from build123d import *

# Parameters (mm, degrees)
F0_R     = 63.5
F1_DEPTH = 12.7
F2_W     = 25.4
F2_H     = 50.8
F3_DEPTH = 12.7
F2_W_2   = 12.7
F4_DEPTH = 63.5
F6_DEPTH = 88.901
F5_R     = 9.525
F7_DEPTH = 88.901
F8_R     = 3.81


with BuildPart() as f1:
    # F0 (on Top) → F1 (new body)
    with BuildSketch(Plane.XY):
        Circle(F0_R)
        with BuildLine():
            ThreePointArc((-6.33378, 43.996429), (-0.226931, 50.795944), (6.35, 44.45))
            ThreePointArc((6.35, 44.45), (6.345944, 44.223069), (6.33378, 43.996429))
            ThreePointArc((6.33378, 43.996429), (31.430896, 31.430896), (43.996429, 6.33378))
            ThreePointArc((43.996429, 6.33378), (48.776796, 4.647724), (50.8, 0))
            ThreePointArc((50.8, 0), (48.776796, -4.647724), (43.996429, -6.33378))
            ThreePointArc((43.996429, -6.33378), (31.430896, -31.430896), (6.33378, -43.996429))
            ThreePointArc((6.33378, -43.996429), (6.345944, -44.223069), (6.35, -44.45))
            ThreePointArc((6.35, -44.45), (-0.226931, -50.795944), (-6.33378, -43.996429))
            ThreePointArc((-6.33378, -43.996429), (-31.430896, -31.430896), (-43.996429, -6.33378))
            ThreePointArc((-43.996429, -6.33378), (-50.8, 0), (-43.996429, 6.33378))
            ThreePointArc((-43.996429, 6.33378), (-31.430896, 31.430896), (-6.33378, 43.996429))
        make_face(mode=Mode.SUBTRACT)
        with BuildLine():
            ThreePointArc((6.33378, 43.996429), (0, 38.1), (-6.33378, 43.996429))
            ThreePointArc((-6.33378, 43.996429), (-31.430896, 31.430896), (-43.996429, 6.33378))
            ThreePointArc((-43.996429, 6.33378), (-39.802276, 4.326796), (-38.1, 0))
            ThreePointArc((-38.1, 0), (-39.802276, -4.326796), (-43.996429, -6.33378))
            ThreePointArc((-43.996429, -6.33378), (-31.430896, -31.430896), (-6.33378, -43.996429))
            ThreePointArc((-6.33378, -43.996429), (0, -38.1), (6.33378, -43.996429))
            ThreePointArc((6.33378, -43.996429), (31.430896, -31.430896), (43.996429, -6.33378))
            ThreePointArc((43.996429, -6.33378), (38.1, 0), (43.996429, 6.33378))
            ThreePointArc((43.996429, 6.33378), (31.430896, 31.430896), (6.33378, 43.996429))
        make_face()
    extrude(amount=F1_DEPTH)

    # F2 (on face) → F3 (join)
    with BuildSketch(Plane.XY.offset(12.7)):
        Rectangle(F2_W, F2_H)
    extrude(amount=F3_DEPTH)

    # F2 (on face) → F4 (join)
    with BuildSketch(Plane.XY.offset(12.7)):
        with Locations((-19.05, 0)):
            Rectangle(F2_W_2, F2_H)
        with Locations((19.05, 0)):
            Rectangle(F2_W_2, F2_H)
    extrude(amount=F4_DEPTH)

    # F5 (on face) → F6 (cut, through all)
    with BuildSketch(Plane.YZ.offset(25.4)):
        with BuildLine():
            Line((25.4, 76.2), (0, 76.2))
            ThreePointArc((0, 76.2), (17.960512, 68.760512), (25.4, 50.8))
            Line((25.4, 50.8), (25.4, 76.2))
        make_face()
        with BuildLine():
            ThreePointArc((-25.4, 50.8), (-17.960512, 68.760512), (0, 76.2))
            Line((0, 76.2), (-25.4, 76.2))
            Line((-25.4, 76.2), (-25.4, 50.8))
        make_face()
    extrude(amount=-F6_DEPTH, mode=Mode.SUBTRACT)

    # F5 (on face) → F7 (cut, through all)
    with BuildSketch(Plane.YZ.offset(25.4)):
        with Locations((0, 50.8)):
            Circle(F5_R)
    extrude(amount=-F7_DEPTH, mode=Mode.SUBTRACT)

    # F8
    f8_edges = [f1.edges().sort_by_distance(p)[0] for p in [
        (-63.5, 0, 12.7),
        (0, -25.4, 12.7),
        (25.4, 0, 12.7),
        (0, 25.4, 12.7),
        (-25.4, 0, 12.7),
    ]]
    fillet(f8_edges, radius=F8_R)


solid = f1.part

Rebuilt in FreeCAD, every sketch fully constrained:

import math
import FreeCAD as App
import Part
import Sketcher
from FreeCAD import Vector
Q = App.Units.Quantity


def edges_at(feature, points):
    """Names of the edges that pass closest to the given points."""
    edges = feature.Shape.Edges
    near = lambda p: min(range(len(edges)), key=lambda i: edges[i].distToShape(Part.Vertex(*p))[0])
    return sorted({f"Edge{near(p) + 1}" for p in points})

doc = App.newDocument("Part")
body = doc.addObject("PartDesign::Body", "Body")

# Sketch on XY plane
sketch1 = body.newObject("Sketcher::SketchObject", "Sketch")
sketch1.AttachmentSupport = (doc.getObject("XY_Plane"), [""])
sketch1.MapMode = "FlatFace"
sketch1.addGeometry([
    Part.Circle(Vector(0, 0, 0), Vector(0, 0, 1), 63.5),  # 0
    Part.ArcOfCircle(Part.Circle(Vector(-44.45, 0, 0), Vector(0, 0, 1), 6.35), math.radians(85.903957), math.radians(274.096043)),  # 1
    Part.ArcOfCircle(Part.Circle(Vector(-44.449999, 0.000001, 0), Vector(0, 0, 1), 6.349999), math.radians(-0.000006), math.radians(85.903969)),  # 2
    Part.ArcOfCircle(Part.Circle(Vector(-44.449999, -0.000001, 0), Vector(0, 0, 1), 6.349999), math.radians(-85.903969), math.radians(0.000006)),  # 3
    Part.ArcOfCircle(Part.Circle(Vector(0, -44.45, 0), Vector(0, 0, 1), 6.35), math.radians(175.903956), math.radians(360.000004)),  # 4
    Part.ArcOfCircle(Part.Circle(Vector(0, -44.45, 0), Vector(0, 0, 1), 6.35), math.radians(4.096037), math.radians(175.903963)),  # 5
    Part.ArcOfCircle(Part.Circle(Vector(0.000623, -44.449982, 0), Vector(0, 0, 1), 6.349377), math.radians(-0.000159), math.radians(4.096284)),  # 6
    Part.ArcOfCircle(Part.Circle(Vector(44.450001, -0.000001, 0), Vector(0, 0, 1), 6.349999), math.radians(-94.096048), math.radians(0.000005)),  # 7
    Part.ArcOfCircle(Part.Circle(Vector(44.45, 0, 0), Vector(0, 0, 1), 6.35), math.radians(94.096037), math.radians(265.903963)),  # 8
    Part.ArcOfCircle(Part.Circle(Vector(44.450001, 0.000001, 0), Vector(0, 0, 1), 6.349999), math.radians(-0.000005), math.radians(94.096048)),  # 9
    Part.ArcOfCircle(Part.Circle(Vector(0.000623, 44.449982, 0), Vector(0, 0, 1), 6.349377), math.radians(-4.096284), math.radians(0.000159)),  # 10
    Part.ArcOfCircle(Part.Circle(Vector(0, 44.45, 0), Vector(0, 0, 1), 6.35), math.radians(-175.903963), math.radians(-4.096037)),  # 11
    Part.ArcOfCircle(Part.Circle(Vector(0, 44.45, 0), Vector(0, 0, 1), 6.35), math.radians(-0.000004), math.radians(184.096044)),  # 12
], False)
sketch1.addConstraint([
    Sketcher.Constraint("Tangent", 1, 1, 2, 2),
    Sketcher.Constraint("Tangent", 2, 1, 3, 2),
    Sketcher.Constraint("Tangent", 3, 1, 1, 2),
    Sketcher.Constraint("Tangent", 4, 1, 5, 2),
    Sketcher.Constraint("Coincident", 5, 1, 6, 2),
    Sketcher.Constraint("Coincident", 6, 1, 4, 2),
    Sketcher.Constraint("Tangent", 7, 1, 8, 2),
    Sketcher.Constraint("Tangent", 8, 1, 9, 2),
    Sketcher.Constraint("Tangent", 9, 1, 7, 2),
    Sketcher.Constraint("Coincident", 10, 1, 11, 2),
    Sketcher.Constraint("Tangent", 11, 1, 12, 2),
    Sketcher.Constraint("Coincident", 12, 1, 10, 2),
    Sketcher.Constraint("Coincident", 0, 3, -1, 1),
    Sketcher.Constraint("Equal", 3, 4),
    Sketcher.Constraint("Equal", 4, 5),
    Sketcher.Constraint("Equal", 5, 7),
    Sketcher.Constraint("Equal", 6, 10),
    Sketcher.Constraint("Equal", 9, 11),
    Sketcher.Constraint("Equal", 11, 12),
    Sketcher.Constraint("Symmetric", 1, 3, 7, 3, -1, 1),
    Sketcher.Constraint("Symmetric", 4, 3, 11, 3, -1, 1),
    Sketcher.Constraint("Symmetric", 4, 1, 5, 1, -2),
    Sketcher.Constraint("Symmetric", 3, 1, 7, 1, -2),
    Sketcher.Constraint("PointOnObject", 2, 1, -1),
    Sketcher.Constraint("PointOnObject", 9, 1, -1),
    Sketcher.Constraint("Horizontal", 5, 3, 6, 1),
    Sketcher.Constraint("Horizontal", 1, 1, 8, 1),
    Sketcher.Constraint("Horizontal", 10, 1, 11, 1),
    Sketcher.Constraint("Horizontal", 11, 3, 12, 1),
    Sketcher.Constraint("Vertical", 1, 1, 3, 1),
    Sketcher.Constraint("Vertical", 5, 1, 10, 1),
    Sketcher.Constraint("Diameter", 0, Q("5 in")),
    Sketcher.Constraint("Radius", 1, Q("0.25 in")),
    Sketcher.Constraint("DistanceX", -1, 1, 9, 1, Q("2 in")),
    Sketcher.Constraint("DistanceY", 4, 3, -1, 1, Q("1.75 in")),
    Sketcher.Constraint("Radius", 6, Q("6.349377 mm")),
    Sketcher.Constraint("DistanceX", 1, 1, -1, 1, Q("43.996429 mm")),
    Sketcher.Constraint("DistanceX", 4, 1, -1, 1, Q("6.33378 mm")),
])
pad1 = body.newObject("PartDesign::Pad", "Pad")
pad1.Profile = sketch1
pad1.Length = Q("0.5 in")

# Sketch on XY plane
sketch2 = body.newObject("Sketcher::SketchObject", "Sketch001")
sketch2.AttachmentSupport = (doc.getObject("XY_Plane"), [""])
sketch2.MapMode = "FlatFace"
sketch2.AttachmentOffset = App.Placement(Vector(0, 0, 0.5 * 25.4), App.Rotation())
sketch2.addGeometry([
    Part.LineSegment(Vector(-12.7, 25.4, 0), Vector(-12.7, -25.4, 0)),
    Part.LineSegment(Vector(-12.7, -25.4, 0), Vector(12.7, -25.4, 0)),
    Part.LineSegment(Vector(12.7, -25.4, 0), Vector(12.7, 25.4, 0)),
    Part.LineSegment(Vector(12.7, 25.4, 0), Vector(-12.7, 25.4, 0)),
], False)
sketch2.addConstraint([
    Sketcher.Constraint("Coincident", 0, 2, 1, 1),
    Sketcher.Constraint("Coincident", 1, 2, 2, 1),
    Sketcher.Constraint("Coincident", 2, 2, 3, 1),
    Sketcher.Constraint("Coincident", 3, 2, 0, 1),
    Sketcher.Constraint("Vertical", 0),
    Sketcher.Constraint("Horizontal", 1),
    Sketcher.Constraint("Vertical", 2),
    Sketcher.Constraint("Horizontal", 3),
    Sketcher.Constraint("Symmetric", 0, 2, 2, 2, -1, 1),
    Sketcher.Constraint("DistanceX", 1, 1, 1, 2, Q("1 in")),
    Sketcher.Constraint("DistanceY", 0, 2, 0, 1, Q("2 in")),
])
pad2 = body.newObject("PartDesign::Pad", "Pad001")
pad2.Profile = sketch2
pad2.Length = Q("0.5 in")

# Sketch on XY plane
sketch3 = body.newObject("Sketcher::SketchObject", "Sketch002")
sketch3.AttachmentSupport = (doc.getObject("XY_Plane"), [""])
sketch3.MapMode = "FlatFace"
sketch3.AttachmentOffset = App.Placement(Vector(0, 0, 0.5 * 25.4), App.Rotation())
sketch3.addGeometry([
    Part.LineSegment(Vector(-25.4, 25.4, 0), Vector(-25.4, -25.4, 0)),  # 0
    Part.LineSegment(Vector(-25.4, -25.4, 0), Vector(-12.7, -25.4, 0)),  # 1
    Part.LineSegment(Vector(-12.7, -25.4, 0), Vector(-12.7, 25.4, 0)),  # 2
    Part.LineSegment(Vector(-12.7, 25.4, 0), Vector(-25.4, 25.4, 0)),  # 3
    Part.LineSegment(Vector(12.7, 25.4, 0), Vector(12.7, -25.4, 0)),  # 4
    Part.LineSegment(Vector(12.7, -25.4, 0), Vector(25.4, -25.4, 0)),  # 5
    Part.LineSegment(Vector(25.4, -25.4, 0), Vector(25.4, 25.4, 0)),  # 6
    Part.LineSegment(Vector(25.4, 25.4, 0), Vector(12.7, 25.4, 0)),  # 7
], False)
sketch3.addConstraint([
    Sketcher.Constraint("Coincident", 0, 2, 1, 1),
    Sketcher.Constraint("Coincident", 1, 2, 2, 1),
    Sketcher.Constraint("Coincident", 2, 2, 3, 1),
    Sketcher.Constraint("Coincident", 3, 2, 0, 1),
    Sketcher.Constraint("Coincident", 4, 2, 5, 1),
    Sketcher.Constraint("Coincident", 5, 2, 6, 1),
    Sketcher.Constraint("Coincident", 6, 2, 7, 1),
    Sketcher.Constraint("Coincident", 7, 2, 4, 1),
    Sketcher.Constraint("Vertical", 0),
    Sketcher.Constraint("Horizontal", 1),
    Sketcher.Constraint("Vertical", 2),
    Sketcher.Constraint("Horizontal", 3),
    Sketcher.Constraint("Vertical", 4),
    Sketcher.Constraint("Horizontal", 5),
    Sketcher.Constraint("Vertical", 6),
    Sketcher.Constraint("Horizontal", 7),
    Sketcher.Constraint("Symmetric", 2, 2, 4, 2, -1, 1),
    Sketcher.Constraint("Symmetric", 0, 2, 6, 2, -1, 1),
    Sketcher.Constraint("Horizontal", 1, 2, 4, 2),
    Sketcher.Constraint("DistanceY", 0, 2, 0, 1, Q("2 in")),
    Sketcher.Constraint("DistanceX", 1, 1, 1, 2, Q("0.5 in")),
    Sketcher.Constraint("DistanceX", 0, 2, -1, 1, Q("1 in")),
])
pad3 = body.newObject("PartDesign::Pad", "Pad002")
pad3.Profile = sketch3
pad3.Length = Q("2.5 in")

# Sketch on YZ plane
sketch4 = body.newObject("Sketcher::SketchObject", "Sketch003")
sketch4.AttachmentSupport = (doc.getObject("YZ_Plane"), [""])
sketch4.MapMode = "FlatFace"
sketch4.AttachmentOffset = App.Placement(Vector(0, 0, 1 * 25.4), App.Rotation())
sketch4.addGeometry([
    Part.LineSegment(Vector(25.4, 76.2, 0), Vector(0, 76.2, 0)),  # 0
    Part.ArcOfCircle(Part.Circle(Vector(-0.000001, 50.799999, 0), Vector(0, 0, 1), 25.400001), math.radians(0.000002), math.radians(89.999998)),  # 1
    Part.LineSegment(Vector(25.4, 50.8, 0), Vector(25.4, 76.2, 0)),  # 2
    Part.ArcOfCircle(Part.Circle(Vector(0.000001, 50.799999, 0), Vector(0, 0, 1), 25.400001), math.radians(90.000002), math.radians(179.999998)),  # 3
    Part.LineSegment(Vector(0, 76.2, 0), Vector(-25.4, 76.2, 0)),  # 4
    Part.LineSegment(Vector(-25.4, 76.2, 0), Vector(-25.4, 50.8, 0)),  # 5
], False)
sketch4.addConstraint([
    Sketcher.Constraint("Tangent", 0, 2, 1, 2),
    Sketcher.Constraint("Tangent", 1, 1, 2, 1),
    Sketcher.Constraint("Coincident", 2, 2, 0, 1),
    Sketcher.Constraint("Tangent", 3, 1, 4, 1),
    Sketcher.Constraint("Coincident", 4, 2, 5, 1),
    Sketcher.Constraint("Tangent", 5, 2, 3, 2),
    Sketcher.Constraint("Horizontal", 0),
    Sketcher.Constraint("Vertical", 2),
    Sketcher.Constraint("Horizontal", 4),
    Sketcher.Constraint("Vertical", 5),
    Sketcher.Constraint("Coincident", 3, 3, 1, 3),
    Sketcher.Constraint("Equal", 1, 3),
    Sketcher.Constraint("PointOnObject", 1, 3, -2),
    Sketcher.Constraint("Radius", 1, Q("1 in")),
    Sketcher.Constraint("DistanceY", -1, 1, 1, 3, Q("2 in")),
])
pocket1 = body.newObject("PartDesign::Pocket", "Pocket")
pocket1.Profile = sketch4
pocket1.Type = "ThroughAll"

# Sketch on YZ plane
sketch5 = body.newObject("Sketcher::SketchObject", "Sketch004")
sketch5.AttachmentSupport = (doc.getObject("YZ_Plane"), [""])
sketch5.MapMode = "FlatFace"
sketch5.AttachmentOffset = App.Placement(Vector(0, 0, 1 * 25.4), App.Rotation())
sketch5.addGeometry(Part.Circle(Vector(0, 50.8, 0), Vector(0, 0, 1), 9.525), False)
sketch5.addConstraint([
    Sketcher.Constraint("PointOnObject", 0, 3, -2),
    Sketcher.Constraint("Diameter", 0, Q("0.75 in")),
    Sketcher.Constraint("DistanceY", -1, 1, 0, 3, Q("2 in")),
])
pocket2 = body.newObject("PartDesign::Pocket", "Pocket001")
pocket2.Profile = sketch5
pocket2.Type = "ThroughAll"
doc.recompute()

fillet = body.newObject("PartDesign::Fillet", "Fillet")
fillet.Base = (pocket2, edges_at(pocket2, [
    (-63.5, 0, 12.7),
    (0, -25.4, 12.7),
    (25.4, 0, 12.7),
    (0, 25.4, 12.7),
    (-25.4, 0, 12.7),
]))
fillet.Radius = Q("0.15 in")

doc.recompute()
